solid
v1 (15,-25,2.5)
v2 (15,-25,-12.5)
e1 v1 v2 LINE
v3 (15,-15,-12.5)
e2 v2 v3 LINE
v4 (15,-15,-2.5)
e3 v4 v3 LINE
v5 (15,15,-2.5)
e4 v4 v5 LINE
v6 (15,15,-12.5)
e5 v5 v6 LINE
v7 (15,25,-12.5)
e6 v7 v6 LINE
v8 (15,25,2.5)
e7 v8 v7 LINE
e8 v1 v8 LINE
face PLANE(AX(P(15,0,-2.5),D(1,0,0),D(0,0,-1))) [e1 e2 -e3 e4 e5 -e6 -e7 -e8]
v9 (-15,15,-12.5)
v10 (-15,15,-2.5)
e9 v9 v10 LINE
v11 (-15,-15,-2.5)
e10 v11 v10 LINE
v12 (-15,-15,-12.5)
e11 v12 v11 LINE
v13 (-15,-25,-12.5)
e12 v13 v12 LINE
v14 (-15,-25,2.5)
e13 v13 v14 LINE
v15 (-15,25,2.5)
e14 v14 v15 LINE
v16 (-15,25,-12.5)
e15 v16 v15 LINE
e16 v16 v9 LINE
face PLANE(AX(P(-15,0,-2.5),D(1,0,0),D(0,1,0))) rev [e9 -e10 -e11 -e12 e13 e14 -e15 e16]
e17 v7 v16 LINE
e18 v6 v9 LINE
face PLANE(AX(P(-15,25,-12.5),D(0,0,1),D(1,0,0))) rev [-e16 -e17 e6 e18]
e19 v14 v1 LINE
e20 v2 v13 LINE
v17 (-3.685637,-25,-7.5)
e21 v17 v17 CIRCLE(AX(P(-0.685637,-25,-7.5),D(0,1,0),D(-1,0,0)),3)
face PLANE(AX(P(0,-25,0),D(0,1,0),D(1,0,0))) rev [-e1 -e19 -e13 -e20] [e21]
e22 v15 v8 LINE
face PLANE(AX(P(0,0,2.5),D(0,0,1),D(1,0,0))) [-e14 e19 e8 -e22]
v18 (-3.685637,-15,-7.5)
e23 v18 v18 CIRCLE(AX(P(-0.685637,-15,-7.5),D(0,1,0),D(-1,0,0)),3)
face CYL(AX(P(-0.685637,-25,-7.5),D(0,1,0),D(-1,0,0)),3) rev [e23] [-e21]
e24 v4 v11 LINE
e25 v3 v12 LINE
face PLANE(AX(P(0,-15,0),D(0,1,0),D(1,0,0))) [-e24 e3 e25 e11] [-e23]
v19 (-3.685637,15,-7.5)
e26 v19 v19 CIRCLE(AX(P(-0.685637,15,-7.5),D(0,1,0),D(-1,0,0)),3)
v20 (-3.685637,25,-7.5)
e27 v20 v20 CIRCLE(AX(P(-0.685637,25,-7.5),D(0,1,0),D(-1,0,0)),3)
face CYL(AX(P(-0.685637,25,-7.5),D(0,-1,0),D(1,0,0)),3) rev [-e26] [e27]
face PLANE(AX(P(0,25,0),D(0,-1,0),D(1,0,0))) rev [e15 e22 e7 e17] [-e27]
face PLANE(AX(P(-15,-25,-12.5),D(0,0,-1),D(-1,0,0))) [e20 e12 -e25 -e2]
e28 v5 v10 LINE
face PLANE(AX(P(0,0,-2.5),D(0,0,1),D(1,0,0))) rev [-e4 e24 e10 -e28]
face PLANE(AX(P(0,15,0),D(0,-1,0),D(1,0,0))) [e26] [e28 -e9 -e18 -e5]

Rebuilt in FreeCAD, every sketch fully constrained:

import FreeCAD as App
import Part
import Sketcher
from FreeCAD import Vector

doc = App.newDocument("Part")
body = doc.addObject("PartDesign::Body", "Body")

# Sketch on XY plane
sketch1 = body.newObject("Sketcher::SketchObject", "Sketch")
sketch1.AttachmentSupport = (doc.getObject("XY_Plane"), [""])
sketch1.MapMode = "FlatFace"
sketch1.addGeometry([
    Part.LineSegment(Vector(-15, 15, 0), Vector(-15, -15, 0)),
    Part.LineSegment(Vector(-15, -15, 0), Vector(15, -15, 0)),
    Part.LineSegment(Vector(15, -15, 0), Vector(15, 15, 0)),
    Part.LineSegment(Vector(15, 15, 0), Vector(-15, 15, 0)),
], False)
sketch1.addConstraint([
    Sketcher.Constraint("Coincident", 0, 2, 1, 1),
    Sketcher.Constraint("Coincident", 1, 2, 2, 1),
    Sketcher.Constraint("Coincident", 2, 2, 3, 1),
    Sketcher.Constraint("Coincident", 3, 2, 0, 1),
    Sketcher.Constraint("Vertical", 0),
    Sketcher.Constraint("Horizontal", 1),
    Sketcher.Constraint("Vertical", 2),
    Sketcher.Constraint("Horizontal", 3),
    Sketcher.Constraint("Symmetric", 0, 2, 2, 2, -1, 1),
    Sketcher.Constraint("Equal", 3, 0),
    Sketcher.Constraint("DistanceX", 1, 1, 1, 2, 30.0),
])
pad1 = body.newObject("PartDesign::Pad", "Pad")
pad1.Profile = sketch1
pad1.Type = "TwoLengths"
pad1.Length = 2.5
pad1.Length2 = 2.5

# Sketch on XZ plane
sketch2 = body.newObject("Sketcher::SketchObject", "Sketch001")
sketch2.AttachmentSupport = (doc.getObject("XZ_Plane"), [""])
sketch2.MapMode = "FlatFace"
sketch2.AttachmentOffset = App.Placement(Vector(0, 0, -15), App.Rotation())
sketch2.addGeometry([
    Part.LineSegment(Vector(-15, -12.5, 0), Vector(-15, 2.5, 0)),  # 0
    Part.LineSegment(Vector(-15, 2.5, 0), Vector(15, 2.5, 0)),  # 1
    Part.LineSegment(Vector(15, 2.5, 0), Vector(15, -12.5, 0)),  # 2
    Part.LineSegment(Vector(15, -12.5, 0), Vector(-15, -12.5, 0)),  # 3
    Part.Circle(Vector(-0.7, -7.5, 0), Vector(0, 0, 1), 3),  # 4
], False)
sketch2.addConstraint([
    Sketcher.Constraint("Coincident", 0, 2, 1, 1),
    Sketcher.Constraint("Coincident", 1, 2, 2, 1),
    Sketcher.Constraint("Coincident", 2, 2, 3, 1),
    Sketcher.Constraint("Coincident", 3, 2, 0, 1),
    Sketcher.Constraint("Vertical", 0),
    Sketcher.Constraint("Horizontal", 1),
    Sketcher.Constraint("Vertical", 2),
    Sketcher.Constraint("Horizontal", 3),
    Sketcher.Constraint("Diameter", 4, 6.0),
    Sketcher.Constraint("DistanceX", 1, 1, 1, 2, 30.0),
    Sketcher.Constraint("DistanceY", 0, 1, 0, 2, 15.0),
    Sketcher.Constraint("DistanceX", 0, 2, -1, 1, 15.0),
    Sketcher.Constraint("DistanceY", 4, 3, 0, 2, 10.0),
    Sketcher.Constraint("DistanceY", 4, 3, -1, 1, 7.5),
    Sketcher.Constraint("DistanceX", 4, 3, -1, 1, 0.685637),
])
pad2 = body.newObject("PartDesign::Pad", "Pad001")
pad2.Profile = sketch2
pad2.Length = 10
pad2.Reversed = True
doc.recompute()

mirrored = body.newObject("PartDesign::Mirrored", "Mirrored")
mirrored.Originals = [pad2]
mirrored.MirrorPlane = (doc.getObject("XZ_Plane"), [""])
body.Tip = mirrored

doc.recompute()
